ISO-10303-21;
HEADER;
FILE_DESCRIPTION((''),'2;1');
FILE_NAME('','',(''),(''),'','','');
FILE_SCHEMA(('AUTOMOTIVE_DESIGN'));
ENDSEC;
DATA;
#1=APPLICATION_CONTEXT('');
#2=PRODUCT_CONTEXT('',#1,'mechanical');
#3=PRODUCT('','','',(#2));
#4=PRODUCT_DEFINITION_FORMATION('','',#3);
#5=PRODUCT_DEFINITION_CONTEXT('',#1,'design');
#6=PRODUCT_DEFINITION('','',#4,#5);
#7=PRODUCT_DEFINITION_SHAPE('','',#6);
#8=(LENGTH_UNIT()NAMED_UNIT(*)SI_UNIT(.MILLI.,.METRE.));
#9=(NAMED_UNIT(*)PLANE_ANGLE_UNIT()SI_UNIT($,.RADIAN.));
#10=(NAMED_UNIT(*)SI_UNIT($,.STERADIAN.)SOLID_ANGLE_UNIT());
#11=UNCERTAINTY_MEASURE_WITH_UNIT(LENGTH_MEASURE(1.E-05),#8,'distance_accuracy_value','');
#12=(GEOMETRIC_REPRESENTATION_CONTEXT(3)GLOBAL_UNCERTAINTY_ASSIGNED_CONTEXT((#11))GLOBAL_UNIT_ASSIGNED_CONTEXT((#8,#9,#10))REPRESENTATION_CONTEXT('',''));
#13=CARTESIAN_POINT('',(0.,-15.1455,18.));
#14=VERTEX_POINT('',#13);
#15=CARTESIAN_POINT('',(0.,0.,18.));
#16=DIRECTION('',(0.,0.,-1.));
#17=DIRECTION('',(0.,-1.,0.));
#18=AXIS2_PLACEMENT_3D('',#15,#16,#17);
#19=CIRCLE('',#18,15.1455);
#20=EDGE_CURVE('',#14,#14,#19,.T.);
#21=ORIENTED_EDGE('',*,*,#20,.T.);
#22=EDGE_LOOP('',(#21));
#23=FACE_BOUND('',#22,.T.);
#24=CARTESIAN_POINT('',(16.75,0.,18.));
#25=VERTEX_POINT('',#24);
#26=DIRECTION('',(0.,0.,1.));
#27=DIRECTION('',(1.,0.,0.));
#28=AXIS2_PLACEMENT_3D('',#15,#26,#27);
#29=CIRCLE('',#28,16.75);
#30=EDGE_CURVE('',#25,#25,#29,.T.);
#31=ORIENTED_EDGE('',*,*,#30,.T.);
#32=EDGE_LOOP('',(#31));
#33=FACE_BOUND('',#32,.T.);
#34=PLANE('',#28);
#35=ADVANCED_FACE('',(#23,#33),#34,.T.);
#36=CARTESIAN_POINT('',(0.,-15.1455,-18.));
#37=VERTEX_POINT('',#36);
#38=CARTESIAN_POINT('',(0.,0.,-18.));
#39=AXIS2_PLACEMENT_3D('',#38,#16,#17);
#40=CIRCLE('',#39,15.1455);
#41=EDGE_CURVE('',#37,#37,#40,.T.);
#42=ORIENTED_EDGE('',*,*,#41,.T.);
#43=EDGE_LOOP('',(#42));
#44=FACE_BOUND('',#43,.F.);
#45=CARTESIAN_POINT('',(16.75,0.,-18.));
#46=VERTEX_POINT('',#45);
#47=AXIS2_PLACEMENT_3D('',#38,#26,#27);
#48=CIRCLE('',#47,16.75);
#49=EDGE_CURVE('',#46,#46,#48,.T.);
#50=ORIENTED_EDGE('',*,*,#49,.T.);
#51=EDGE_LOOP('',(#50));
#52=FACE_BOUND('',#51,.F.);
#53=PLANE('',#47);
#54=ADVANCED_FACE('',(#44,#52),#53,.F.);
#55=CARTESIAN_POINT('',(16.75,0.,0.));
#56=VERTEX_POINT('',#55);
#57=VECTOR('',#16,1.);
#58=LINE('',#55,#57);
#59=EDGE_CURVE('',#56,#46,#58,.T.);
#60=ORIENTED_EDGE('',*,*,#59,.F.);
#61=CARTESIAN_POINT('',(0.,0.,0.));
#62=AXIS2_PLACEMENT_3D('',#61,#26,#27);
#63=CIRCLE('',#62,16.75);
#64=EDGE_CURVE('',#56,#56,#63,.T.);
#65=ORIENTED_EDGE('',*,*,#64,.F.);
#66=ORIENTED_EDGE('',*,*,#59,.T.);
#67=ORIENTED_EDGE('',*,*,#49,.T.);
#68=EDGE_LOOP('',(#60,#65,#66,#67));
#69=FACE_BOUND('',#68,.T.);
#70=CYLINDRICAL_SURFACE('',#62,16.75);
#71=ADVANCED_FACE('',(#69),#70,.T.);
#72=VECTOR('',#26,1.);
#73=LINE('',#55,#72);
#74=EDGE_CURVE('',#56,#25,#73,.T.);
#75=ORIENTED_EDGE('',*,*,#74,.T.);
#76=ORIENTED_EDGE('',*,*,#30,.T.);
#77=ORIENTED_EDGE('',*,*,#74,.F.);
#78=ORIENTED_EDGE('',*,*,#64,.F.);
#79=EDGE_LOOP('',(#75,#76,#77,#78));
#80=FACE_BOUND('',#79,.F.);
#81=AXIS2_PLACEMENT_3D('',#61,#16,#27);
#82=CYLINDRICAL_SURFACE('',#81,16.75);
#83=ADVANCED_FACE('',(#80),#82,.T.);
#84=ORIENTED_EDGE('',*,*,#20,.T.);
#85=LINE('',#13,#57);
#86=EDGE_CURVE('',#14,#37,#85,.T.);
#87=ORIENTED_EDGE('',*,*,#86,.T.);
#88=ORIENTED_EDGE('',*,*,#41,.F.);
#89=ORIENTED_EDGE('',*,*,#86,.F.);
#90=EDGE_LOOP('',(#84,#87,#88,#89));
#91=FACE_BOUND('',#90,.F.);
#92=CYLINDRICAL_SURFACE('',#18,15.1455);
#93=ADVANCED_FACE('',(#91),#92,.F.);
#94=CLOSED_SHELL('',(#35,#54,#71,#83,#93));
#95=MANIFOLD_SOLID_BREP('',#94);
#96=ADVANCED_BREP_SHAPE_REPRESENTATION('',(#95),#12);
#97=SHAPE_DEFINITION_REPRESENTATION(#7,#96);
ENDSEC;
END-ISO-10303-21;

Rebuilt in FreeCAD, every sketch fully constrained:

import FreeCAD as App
import Part
import Sketcher
Q = App.Units.Quantity

doc = App.newDocument("Part")
body = doc.addObject("PartDesign::Body", "Body")

sketch1 = body.newObject("Sketcher::SketchObject", "Sketch")
sketch1.AttachmentSupport = (doc.getObject("XY_Plane"), [""])
sketch1.MapMode = "FlatFace"
sketch1.addGeometry(Part.Circle(App.Vector(0, 0, 0), App.Vector(0, 0, 1), 17), False)
sketch1.addConstraint([
    Sketcher.Constraint("Coincident", 0, 3, -1, 1),
    Sketcher.Constraint("Diameter", 0, Q("33.5 mm")),
])
pad1 = body.newObject("PartDesign::Pad", "Pad")
pad1.Profile = sketch1
pad1.Length = 36
pad1.Midplane = True

sketch2 = body.newObject("Sketcher::SketchObject", "Sketch001")
sketch2.AttachmentSupport = (doc.getObject("XY_Plane"), [""])
sketch2.MapMode = "FlatFace"
sketch2.AttachmentOffset = App.Placement(App.Vector(0, 0, 18), App.Rotation())
sketch2.addGeometry(Part.Circle(App.Vector(0, 0, 0), App.Vector(0, 0, 1), 15), False)
sketch2.addConstraint([
    Sketcher.Constraint("Coincident", 0, 3, -1, 1),
    Sketcher.Constraint("Diameter", 0, Q("30.291 mm")),
])
doc.recompute()
hole = body.newObject("PartDesign::Hole", "Hole")
hole.Profile = sketch2
hole.ThreadType = "None"
hole.Diameter = 30.291
hole.DepthType = "ThroughAll"

doc.recompute()
